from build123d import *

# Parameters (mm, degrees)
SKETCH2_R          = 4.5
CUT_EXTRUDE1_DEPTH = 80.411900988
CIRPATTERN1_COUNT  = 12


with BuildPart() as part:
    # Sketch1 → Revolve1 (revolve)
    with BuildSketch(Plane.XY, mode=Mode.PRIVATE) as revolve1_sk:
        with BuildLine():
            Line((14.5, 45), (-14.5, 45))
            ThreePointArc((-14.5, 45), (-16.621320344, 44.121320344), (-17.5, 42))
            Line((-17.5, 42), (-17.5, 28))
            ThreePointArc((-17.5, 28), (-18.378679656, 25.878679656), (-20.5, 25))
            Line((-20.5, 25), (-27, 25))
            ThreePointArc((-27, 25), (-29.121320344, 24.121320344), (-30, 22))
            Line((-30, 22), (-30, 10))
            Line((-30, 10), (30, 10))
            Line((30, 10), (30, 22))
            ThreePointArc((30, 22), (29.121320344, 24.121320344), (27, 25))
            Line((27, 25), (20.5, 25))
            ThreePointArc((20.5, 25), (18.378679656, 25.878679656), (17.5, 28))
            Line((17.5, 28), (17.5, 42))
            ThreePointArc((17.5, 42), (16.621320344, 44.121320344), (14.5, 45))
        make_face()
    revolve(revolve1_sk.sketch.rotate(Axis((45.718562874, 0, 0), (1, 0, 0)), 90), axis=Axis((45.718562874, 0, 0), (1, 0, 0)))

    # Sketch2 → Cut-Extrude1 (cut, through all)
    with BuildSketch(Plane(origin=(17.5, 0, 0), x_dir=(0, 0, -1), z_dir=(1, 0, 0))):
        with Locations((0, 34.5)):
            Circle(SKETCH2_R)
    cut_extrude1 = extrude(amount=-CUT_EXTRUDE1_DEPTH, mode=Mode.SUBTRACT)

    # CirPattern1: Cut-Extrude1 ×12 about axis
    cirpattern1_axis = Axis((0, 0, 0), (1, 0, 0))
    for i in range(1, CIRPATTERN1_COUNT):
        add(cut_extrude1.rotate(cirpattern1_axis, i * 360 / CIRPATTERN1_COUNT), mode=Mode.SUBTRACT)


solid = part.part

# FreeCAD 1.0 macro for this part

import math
import FreeCAD as App
import Part
import Sketcher

V = App.Vector

doc = App.newDocument("Part")
params = doc.addObject("Spreadsheet::Sheet", "Params")
for row, (alias, value) in enumerate([
    ("sketch1_radius", "3 mm"),
    ("sketch1_width", "29 mm"),
    ("sketch1_width2", "60 mm"),
    ("sketch1_height", "14 mm"),
    ("sketch1_height2", "12 mm"),
    ("revolution_angle", "360 deg"),
    ("sketch2_diameter", "9 mm"),
], start=1):
    params.set(f"A{row}", alias)
    params.set(f"B{row}", "=" + value)
    params.setAlias(f"B{row}", alias)

body = doc.addObject("PartDesign::Body", "Body")

sketch1 = body.newObject("Sketcher::SketchObject", "Sketch")
sketch1.AttachmentSupport = (doc.getObject("XY_Plane"), [""])
sketch1.MapMode = "FlatFace"
sketch1.addGeometry(Part.LineSegment(V(14.5, 45, 0), V(-14.5, 45, 0)), False)
sketch1.addGeometry(Part.ArcOfCircle(Part.Circle(V(-14.5, 42, 0), V(0, 0, 1), 3), math.radians(90), math.radians(180)), False)
sketch1.addGeometry(Part.LineSegment(V(-17.5, 42, 0), V(-17.5, 28, 0)), False)
sketch1.addGeometry(Part.ArcOfCircle(Part.Circle(V(-20.5, 28, 0), V(0, 0, 1), 3), math.radians(-90), math.radians(0)), False)
sketch1.addGeometry(Part.LineSegment(V(-20.5, 25, 0), V(-27, 25, 0)), False)
sketch1.addGeometry(Part.ArcOfCircle(Part.Circle(V(-27, 22, 0), V(0, 0, 1), 3), math.radians(90), math.radians(180)), False)
sketch1.addGeometry(Part.LineSegment(V(-30, 22, 0), V(-30, 10, 0)), False)
sketch1.addGeometry(Part.LineSegment(V(-30, 10, 0), V(30, 10, 0)), False)
sketch1.addGeometry(Part.LineSegment(V(30, 10, 0), V(30, 22, 0)), False)
sketch1.addGeometry(Part.ArcOfCircle(Part.Circle(V(27, 22, 0), V(0, 0, 1), 3), math.radians(0), math.radians(90)), False)
sketch1.addGeometry(Part.LineSegment(V(27, 25, 0), V(20.5, 25, 0)), False)
sketch1.addGeometry(Part.ArcOfCircle(Part.Circle(V(20.5, 28, 0), V(0, 0, 1), 3), math.radians(180), math.radians(270)), False)
sketch1.addGeometry(Part.LineSegment(V(17.5, 28, 0), V(17.5, 42, 0)), False)
sketch1.addGeometry(Part.ArcOfCircle(Part.Circle(V(14.5, 42, 0), V(0, 0, 1), 3), math.radians(0), math.radians(90)), False)
sketch1.addConstraint(Sketcher.Constraint("Tangent", 0, 2, 1, 1))
sketch1.addConstraint(Sketcher.Constraint("Tangent", 1, 2, 2, 1))
sketch1.addConstraint(Sketcher.Constraint("Tangent", 2, 2, 3, 2))
sketch1.addConstraint(Sketcher.Constraint("Tangent", 3, 1, 4, 1))
sketch1.addConstraint(Sketcher.Constraint("Tangent", 4, 2, 5, 1))
sketch1.addConstraint(Sketcher.Constraint("Tangent", 5, 2, 6, 1))
sketch1.addConstraint(Sketcher.Constraint("Coincident", 6, 2, 7, 1))
sketch1.addConstraint(Sketcher.Constraint("Coincident", 7, 2, 8, 1))
sketch1.addConstraint(Sketcher.Constraint("Tangent", 8, 2, 9, 1))
sketch1.addConstraint(Sketcher.Constraint("Tangent", 9, 2, 10, 1))
sketch1.addConstraint(Sketcher.Constraint("Tangent", 10, 2, 11, 2))
sketch1.addConstraint(Sketcher.Constraint("Tangent", 11, 1, 12, 1))
sketch1.addConstraint(Sketcher.Constraint("Tangent", 12, 2, 13, 1))
sketch1.addConstraint(Sketcher.Constraint("Tangent", 13, 2, 0, 1))
sketch1.addConstraint(Sketcher.Constraint("Horizontal", 0))
sketch1.addConstraint(Sketcher.Constraint("Vertical", 2))
sketch1.addConstraint(Sketcher.Constraint("Horizontal", 4))
sketch1.addConstraint(Sketcher.Constraint("Vertical", 6))
sketch1.addConstraint(Sketcher.Constraint("Horizontal", 7))
sketch1.addConstraint(Sketcher.Constraint("Vertical", 8))
sketch1.addConstraint(Sketcher.Constraint("Horizontal", 10))
sketch1.addConstraint(Sketcher.Constraint("Vertical", 12))
sketch1.addConstraint(Sketcher.Constraint("Equal", 1, 3))
sketch1.addConstraint(Sketcher.Constraint("Equal", 3, 5))
sketch1.addConstraint(Sketcher.Constraint("Equal", 5, 9))
sketch1.addConstraint(Sketcher.Constraint("Equal", 9, 11))
sketch1.addConstraint(Sketcher.Constraint("Equal", 11, 13))
sketch1.addConstraint(Sketcher.Constraint("Symmetric", 5, 3, 9, 3, -2))
sketch1.addConstraint(Sketcher.Constraint("Equal", 4, 10))
sketch1.addConstraint(Sketcher.Constraint("Radius", 1, 3.0))
sketch1.addConstraint(Sketcher.Constraint("DistanceX", 0, 2, 0, 1, 29.0))
sketch1.addConstraint(Sketcher.Constraint("DistanceX", 7, 1, 7, 2, 60.0))
sketch1.addConstraint(Sketcher.Constraint("DistanceY", 2, 2, 2, 1, 14.0))
sketch1.addConstraint(Sketcher.Constraint("DistanceY", 6, 2, 6, 1, 12.0))
sketch1.addConstraint(Sketcher.Constraint("DistanceY", -1, 1, 1, 3, 42.0))
sketch1.setExpression("Constraints[29]", "Params.sketch1_radius")
sketch1.setExpression("Constraints[30]", "Params.sketch1_width")
sketch1.setExpression("Constraints[31]", "Params.sketch1_width2")
sketch1.setExpression("Constraints[32]", "Params.sketch1_height")
sketch1.setExpression("Constraints[33]", "Params.sketch1_height2")
revolution = body.newObject("PartDesign::Revolution", "Revolution")
revolution.Profile = sketch1
revolution.ReferenceAxis = (sketch1, ["H_Axis"])
revolution.setExpression("Angle", "Params.revolution_angle")

sketch2 = body.newObject("Sketcher::SketchObject", "Sketch001")
sketch2.AttachmentSupport = (doc.getObject("YZ_Plane"), [""])
sketch2.MapMode = "FlatFace"
sketch2.AttachmentOffset = App.Placement(V(0, 0, 17.5), App.Rotation())
sketch2.addGeometry(Part.Circle(V(34.5, 0, 0), V(0, 0, 1), 4.5), False)
sketch2.addConstraint(Sketcher.Constraint("PointOnObject", 0, 3, -1))
sketch2.addConstraint(Sketcher.Constraint("Diameter", 0, 9.0))
sketch2.addConstraint(Sketcher.Constraint("DistanceX", -1, 1, 0, 3, 34.5))
sketch2.setExpression("Constraints[1]", "Params.sketch2_diameter")
pocket1 = body.newObject("PartDesign::Pocket", "Pocket")
pocket1.Profile = sketch2
pocket1.Type = "ThroughAll"
doc.recompute()

polarpattern = body.newObject("PartDesign::PolarPattern", "PolarPattern")
polarpattern.Originals = [pocket1]
polarpattern.Axis = (doc.getObject("X_Axis"), [""])
polarpattern.Angle = 360
polarpattern.Occurrences = 12
body.Tip = polarpattern

doc.recompute()
